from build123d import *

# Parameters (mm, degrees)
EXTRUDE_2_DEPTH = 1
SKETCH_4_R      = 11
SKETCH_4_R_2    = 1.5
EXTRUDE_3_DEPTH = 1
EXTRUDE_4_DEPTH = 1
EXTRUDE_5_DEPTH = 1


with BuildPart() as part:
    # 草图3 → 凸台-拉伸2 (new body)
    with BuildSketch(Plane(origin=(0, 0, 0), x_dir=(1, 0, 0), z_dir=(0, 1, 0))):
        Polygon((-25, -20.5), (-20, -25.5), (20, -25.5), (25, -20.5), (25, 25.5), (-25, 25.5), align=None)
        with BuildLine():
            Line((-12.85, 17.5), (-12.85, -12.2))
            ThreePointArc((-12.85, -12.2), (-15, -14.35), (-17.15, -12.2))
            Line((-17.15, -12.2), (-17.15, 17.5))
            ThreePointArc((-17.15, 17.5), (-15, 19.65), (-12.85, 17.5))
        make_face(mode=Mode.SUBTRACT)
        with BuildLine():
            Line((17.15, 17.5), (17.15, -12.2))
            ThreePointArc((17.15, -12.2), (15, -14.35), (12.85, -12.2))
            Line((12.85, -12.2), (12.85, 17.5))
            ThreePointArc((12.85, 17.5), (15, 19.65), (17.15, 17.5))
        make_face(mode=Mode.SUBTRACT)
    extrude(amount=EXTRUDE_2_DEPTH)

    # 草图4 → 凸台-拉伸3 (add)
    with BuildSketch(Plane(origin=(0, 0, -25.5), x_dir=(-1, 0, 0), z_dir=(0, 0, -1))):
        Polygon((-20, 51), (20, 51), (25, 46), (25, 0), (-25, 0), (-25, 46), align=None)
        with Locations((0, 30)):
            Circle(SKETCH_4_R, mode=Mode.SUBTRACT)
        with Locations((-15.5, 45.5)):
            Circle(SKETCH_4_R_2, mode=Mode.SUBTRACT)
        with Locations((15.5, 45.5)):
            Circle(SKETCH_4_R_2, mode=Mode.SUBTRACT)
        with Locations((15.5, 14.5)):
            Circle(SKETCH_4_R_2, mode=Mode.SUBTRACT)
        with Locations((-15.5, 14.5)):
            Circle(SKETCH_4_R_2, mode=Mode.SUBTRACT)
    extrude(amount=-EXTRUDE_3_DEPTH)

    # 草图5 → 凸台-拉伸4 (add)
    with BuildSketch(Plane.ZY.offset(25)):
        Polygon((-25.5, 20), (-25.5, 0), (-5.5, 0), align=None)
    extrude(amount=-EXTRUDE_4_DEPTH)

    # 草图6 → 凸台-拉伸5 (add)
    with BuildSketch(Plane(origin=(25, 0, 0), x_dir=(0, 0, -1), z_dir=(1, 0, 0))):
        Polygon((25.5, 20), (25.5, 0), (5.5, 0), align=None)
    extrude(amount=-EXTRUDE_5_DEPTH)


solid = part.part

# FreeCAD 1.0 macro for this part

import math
import FreeCAD as App
import Part
import Sketcher
from FreeCAD import Vector


def add_polygon(sketch, points):
    """Adds a closed chain of lines whose ends are joined by coincident constraints."""
    first, n = sketch.GeometryCount, len(points)
    for a, b in zip(points, points[1:] + points[:1]):
        sketch.addGeometry(Part.LineSegment(App.Vector(*a, 0), App.Vector(*b, 0)), False)
    for i in range(n):
        sketch.addConstraint(Sketcher.Constraint("Coincident", first + i, 2, first + (i + 1) % n, 1))

doc = App.newDocument("Part")
body = doc.addObject("PartDesign::Body", "Body")

sketch1 = doc.addObject("Sketcher::SketchObject", "Sketch")
body.addObject(sketch1)
sketch1.AttachmentSupport = (doc.XZ_Plane, [""])
sketch1.MapMode = "FlatFace"
add_polygon(sketch1, [(-25, 20.5), (-20, 25.5), (20, 25.5), (25, 20.5), (25, -25.5), (-25, -25.5)])
sketch1.addGeometry(Part.ArcOfCircle(Part.Circle(Vector(-15, -17.5, 0), Vector(0, 0, 1), 2.1), math.radians(180), math.radians(360)), False)
sketch1.addGeometry(Part.LineSegment(Vector(-12.8, -17.5, 0), Vector(-12.8, 12.2, 0)), False)
sketch1.addGeometry(Part.ArcOfCircle(Part.Circle(Vector(-15, 12.2, 0), Vector(0, 0, 1), 2.1), math.radians(0), math.radians(180)), False)
sketch1.addGeometry(Part.LineSegment(Vector(-17.1, 12.2, 0), Vector(-17.1, -17.5, 0)), False)
sketch1.addGeometry(Part.ArcOfCircle(Part.Circle(Vector(15, -17.5, 0), Vector(0, 0, 1), 2.1), math.radians(180), math.radians(360)), False)
sketch1.addGeometry(Part.LineSegment(Vector(17.1, -17.5, 0), Vector(17.1, 12.2, 0)), False)
sketch1.addGeometry(Part.ArcOfCircle(Part.Circle(Vector(15, 12.2, 0), Vector(0, 0, 1), 2.1), math.radians(0), math.radians(180)), False)
sketch1.addGeometry(Part.LineSegment(Vector(12.8, 12.2, 0), Vector(12.8, -17.5, 0)), False)
sketch1.addConstraint(Sketcher.Constraint("Tangent", 6, 2, 7, 1))
sketch1.addConstraint(Sketcher.Constraint("Tangent", 7, 2, 8, 1))
sketch1.addConstraint(Sketcher.Constraint("Tangent", 8, 2, 9, 1))
sketch1.addConstraint(Sketcher.Constraint("Tangent", 9, 2, 6, 1))
sketch1.addConstraint(Sketcher.Constraint("Tangent", 10, 2, 11, 1))
sketch1.addConstraint(Sketcher.Constraint("Tangent", 11, 2, 12, 1))
sketch1.addConstraint(Sketcher.Constraint("Tangent", 12, 2, 13, 1))
sketch1.addConstraint(Sketcher.Constraint("Tangent", 13, 2, 10, 1))
sketch1.addConstraint(Sketcher.Constraint("Horizontal", 1))
sketch1.addConstraint(Sketcher.Constraint("Vertical", 3))
sketch1.addConstraint(Sketcher.Constraint("Horizontal", 4))
sketch1.addConstraint(Sketcher.Constraint("Vertical", 5))
sketch1.addConstraint(Sketcher.Constraint("Vertical", 7))
sketch1.addConstraint(Sketcher.Constraint("Vertical", 9))
sketch1.addConstraint(Sketcher.Constraint("Vertical", 11))
sketch1.addConstraint(Sketcher.Constraint("Vertical", 13))
sketch1.addConstraint(Sketcher.Constraint("Equal", 8, 10))
sketch1.addConstraint(Sketcher.Constraint("Symmetric", 6, 3, 10, 3, -2))
sketch1.addConstraint(Sketcher.Constraint("Symmetric", 2, 2, 5, 2, -2))
sketch1.addConstraint(Sketcher.Constraint("Perpendicular", 0, 2))
sketch1.addConstraint(Sketcher.Constraint("Horizontal", 8, 3, 12, 3))
sketch1.addConstraint(Sketcher.Constraint("Equal", 0, 2))
sketch1.addConstraint(Sketcher.Constraint("DistanceX", 1, 1, 1, 2, 40.0))
sketch1.addConstraint(Sketcher.Constraint("DistanceX", 4, 2, 4, 1, 50.0))
sketch1.addConstraint(Sketcher.Constraint("DistanceY", 3, 2, 3, 1, 46.0))
sketch1.addConstraint(Sketcher.Constraint("Radius", 6, 2.15))
sketch1.addConstraint(Sketcher.Constraint("DistanceY", 7, 1, 7, 2, 29.7))
sketch1.addConstraint(Sketcher.Constraint("DistanceX", 6, 3, -1, 1, 15.0))
sketch1.addConstraint(Sketcher.Constraint("DistanceY", 6, 3, 0, 2, 43.0))
sketch1.addConstraint(Sketcher.Constraint("DistanceY", 6, 3, -1, 1, 17.5))
pad1 = doc.addObject("PartDesign::Pad", "Pad")
body.addObject(pad1)
pad1.Profile = sketch1
pad1.Length = 1
pad1.Reversed = True

sketch2 = doc.addObject("Sketcher::SketchObject", "Sketch001")
body.addObject(sketch2)
sketch2.AttachmentSupport = (doc.XY_Plane, [""])
sketch2.MapMode = "FlatFace"
sketch2.AttachmentOffset = App.Placement(Vector(0, 0, -25.5), App.Rotation())
add_polygon(sketch2, [(-20, 51), (20, 51), (25, 46), (25, 0), (-25, 0), (-25, 46)])
sketch2.addGeometry(Part.Circle(Vector(-15.5, 14.5, 0), Vector(0, 0, 1), 1.5), False)
sketch2.addGeometry(Part.Circle(Vector(15.5, 14.5, 0), Vector(0, 0, 1), 1.5), False)
sketch2.addGeometry(Part.Circle(Vector(-15.5, 45.5, 0), Vector(0, 0, 1), 1.5), False)
sketch2.addGeometry(Part.Circle(Vector(0, 30, 0), Vector(0, 0, 1), 11), False)
sketch2.addGeometry(Part.Circle(Vector(15.5, 45.5, 0), Vector(0, 0, 1), 1.5), False)
sketch2.addConstraint(Sketcher.Constraint("Horizontal", 0))
sketch2.addConstraint(Sketcher.Constraint("Vertical", 2))
sketch2.addConstraint(Sketcher.Constraint("Horizontal", 3))
sketch2.addConstraint(Sketcher.Constraint("Vertical", 4))
sketch2.addConstraint(Sketcher.Constraint("Equal", 6, 7))
sketch2.addConstraint(Sketcher.Constraint("Equal", 7, 8))
sketch2.addConstraint(Sketcher.Constraint("Equal", 8, 10))
sketch2.addConstraint(Sketcher.Constraint("Symmetric", 2, 2, 3, 2, -1, 1))
sketch2.addConstraint(Sketcher.Constraint("Symmetric", 6, 3, 7, 3, -2))
sketch2.addConstraint(Sketcher.Constraint("Symmetric", 8, 3, 10, 3, -2))
sketch2.addConstraint(Sketcher.Constraint("PointOnObject", 9, 3, -2))
sketch2.addConstraint(Sketcher.Constraint("Perpendicular", 1, 5))
sketch2.addConstraint(Sketcher.Constraint("Horizontal", 1, 2, 4, 2))
sketch2.addConstraint(Sketcher.Constraint("Vertical", 6, 3, 8, 3))
sketch2.addConstraint(Sketcher.Constraint("Equal", 1, 5))
sketch2.addConstraint(Sketcher.Constraint("Diameter", 6, 3.0))
sketch2.addConstraint(Sketcher.Constraint("Diameter", 9, 22.0))
sketch2.addConstraint(Sketcher.Constraint("DistanceX", 0, 1, 0, 2, 40.0))
sketch2.addConstraint(Sketcher.Constraint("DistanceX", 3, 2, 3, 1, 50.0))
sketch2.addConstraint(Sketcher.Constraint("DistanceY", 2, 2, 2, 1, 46.0))
sketch2.addConstraint(Sketcher.Constraint("DistanceY", -1, 1, 9, 3, 30.0))
sketch2.addConstraint(Sketcher.Constraint("DistanceX", 6, 3, 7, 3, 31.0))
sketch2.addConstraint(Sketcher.Constraint("DistanceY", 6, 3, 8, 3, 31.0))
sketch2.addConstraint(Sketcher.Constraint("DistanceY", -1, 1, 6, 3, 14.5))
pad2 = doc.addObject("PartDesign::Pad", "Pad001")
body.addObject(pad2)
pad2.Profile = sketch2
pad2.Length = 1

sketch3 = doc.addObject("Sketcher::SketchObject", "Sketch002")
body.addObject(sketch3)
sketch3.AttachmentSupport = (doc.YZ_Plane, [""])
sketch3.MapMode = "FlatFace"
sketch3.AttachmentOffset = App.Placement(Vector(0, 0, -25), App.Rotation())
add_polygon(sketch3, [(20, -26), (0, -26), (0, -6)])
sketch3.addConstraint(Sketcher.Constraint("Horizontal", 0))
sketch3.addConstraint(Sketcher.Constraint("Vertical", 1))
sketch3.addConstraint(Sketcher.Constraint("PointOnObject", 0, 2, -2))
sketch3.addConstraint(Sketcher.Constraint("Equal", 0, 1))
sketch3.addConstraint(Sketcher.Constraint("DistanceX", 0, 2, 0, 1, 20.0))
sketch3.addConstraint(Sketcher.Constraint("DistanceY", 0, 2, -1, 1, 25.5))
pad3 = doc.addObject("PartDesign::Pad", "Pad002")
body.addObject(pad3)
pad3.Profile = sketch3
pad3.Length = 1

sketch4 = doc.addObject("Sketcher::SketchObject", "Sketch003")
body.addObject(sketch4)
sketch4.AttachmentSupport = (doc.YZ_Plane, [""])
sketch4.MapMode = "FlatFace"
sketch4.AttachmentOffset = App.Placement(Vector(0, 0, 25), App.Rotation())
add_polygon(sketch4, [(0, -26), (20, -26), (0, -6)])
sketch4.addConstraint(Sketcher.Constraint("Horizontal", 0))
sketch4.addConstraint(Sketcher.Constraint("Vertical", 2))
sketch4.addConstraint(Sketcher.Constraint("PointOnObject", 1, 2, -2))
sketch4.addConstraint(Sketcher.Constraint("Equal", 0, 2))
sketch4.addConstraint(Sketcher.Constraint("DistanceX", 0, 1, 0, 2, 20.0))
sketch4.addConstraint(Sketcher.Constraint("DistanceY", 0, 2, -1, 1, 25.5))
pad4 = doc.addObject("PartDesign::Pad", "Pad003")
body.addObject(pad4)
pad4.Profile = sketch4
pad4.Length = 1
pad4.Reversed = True

doc.recompute()
